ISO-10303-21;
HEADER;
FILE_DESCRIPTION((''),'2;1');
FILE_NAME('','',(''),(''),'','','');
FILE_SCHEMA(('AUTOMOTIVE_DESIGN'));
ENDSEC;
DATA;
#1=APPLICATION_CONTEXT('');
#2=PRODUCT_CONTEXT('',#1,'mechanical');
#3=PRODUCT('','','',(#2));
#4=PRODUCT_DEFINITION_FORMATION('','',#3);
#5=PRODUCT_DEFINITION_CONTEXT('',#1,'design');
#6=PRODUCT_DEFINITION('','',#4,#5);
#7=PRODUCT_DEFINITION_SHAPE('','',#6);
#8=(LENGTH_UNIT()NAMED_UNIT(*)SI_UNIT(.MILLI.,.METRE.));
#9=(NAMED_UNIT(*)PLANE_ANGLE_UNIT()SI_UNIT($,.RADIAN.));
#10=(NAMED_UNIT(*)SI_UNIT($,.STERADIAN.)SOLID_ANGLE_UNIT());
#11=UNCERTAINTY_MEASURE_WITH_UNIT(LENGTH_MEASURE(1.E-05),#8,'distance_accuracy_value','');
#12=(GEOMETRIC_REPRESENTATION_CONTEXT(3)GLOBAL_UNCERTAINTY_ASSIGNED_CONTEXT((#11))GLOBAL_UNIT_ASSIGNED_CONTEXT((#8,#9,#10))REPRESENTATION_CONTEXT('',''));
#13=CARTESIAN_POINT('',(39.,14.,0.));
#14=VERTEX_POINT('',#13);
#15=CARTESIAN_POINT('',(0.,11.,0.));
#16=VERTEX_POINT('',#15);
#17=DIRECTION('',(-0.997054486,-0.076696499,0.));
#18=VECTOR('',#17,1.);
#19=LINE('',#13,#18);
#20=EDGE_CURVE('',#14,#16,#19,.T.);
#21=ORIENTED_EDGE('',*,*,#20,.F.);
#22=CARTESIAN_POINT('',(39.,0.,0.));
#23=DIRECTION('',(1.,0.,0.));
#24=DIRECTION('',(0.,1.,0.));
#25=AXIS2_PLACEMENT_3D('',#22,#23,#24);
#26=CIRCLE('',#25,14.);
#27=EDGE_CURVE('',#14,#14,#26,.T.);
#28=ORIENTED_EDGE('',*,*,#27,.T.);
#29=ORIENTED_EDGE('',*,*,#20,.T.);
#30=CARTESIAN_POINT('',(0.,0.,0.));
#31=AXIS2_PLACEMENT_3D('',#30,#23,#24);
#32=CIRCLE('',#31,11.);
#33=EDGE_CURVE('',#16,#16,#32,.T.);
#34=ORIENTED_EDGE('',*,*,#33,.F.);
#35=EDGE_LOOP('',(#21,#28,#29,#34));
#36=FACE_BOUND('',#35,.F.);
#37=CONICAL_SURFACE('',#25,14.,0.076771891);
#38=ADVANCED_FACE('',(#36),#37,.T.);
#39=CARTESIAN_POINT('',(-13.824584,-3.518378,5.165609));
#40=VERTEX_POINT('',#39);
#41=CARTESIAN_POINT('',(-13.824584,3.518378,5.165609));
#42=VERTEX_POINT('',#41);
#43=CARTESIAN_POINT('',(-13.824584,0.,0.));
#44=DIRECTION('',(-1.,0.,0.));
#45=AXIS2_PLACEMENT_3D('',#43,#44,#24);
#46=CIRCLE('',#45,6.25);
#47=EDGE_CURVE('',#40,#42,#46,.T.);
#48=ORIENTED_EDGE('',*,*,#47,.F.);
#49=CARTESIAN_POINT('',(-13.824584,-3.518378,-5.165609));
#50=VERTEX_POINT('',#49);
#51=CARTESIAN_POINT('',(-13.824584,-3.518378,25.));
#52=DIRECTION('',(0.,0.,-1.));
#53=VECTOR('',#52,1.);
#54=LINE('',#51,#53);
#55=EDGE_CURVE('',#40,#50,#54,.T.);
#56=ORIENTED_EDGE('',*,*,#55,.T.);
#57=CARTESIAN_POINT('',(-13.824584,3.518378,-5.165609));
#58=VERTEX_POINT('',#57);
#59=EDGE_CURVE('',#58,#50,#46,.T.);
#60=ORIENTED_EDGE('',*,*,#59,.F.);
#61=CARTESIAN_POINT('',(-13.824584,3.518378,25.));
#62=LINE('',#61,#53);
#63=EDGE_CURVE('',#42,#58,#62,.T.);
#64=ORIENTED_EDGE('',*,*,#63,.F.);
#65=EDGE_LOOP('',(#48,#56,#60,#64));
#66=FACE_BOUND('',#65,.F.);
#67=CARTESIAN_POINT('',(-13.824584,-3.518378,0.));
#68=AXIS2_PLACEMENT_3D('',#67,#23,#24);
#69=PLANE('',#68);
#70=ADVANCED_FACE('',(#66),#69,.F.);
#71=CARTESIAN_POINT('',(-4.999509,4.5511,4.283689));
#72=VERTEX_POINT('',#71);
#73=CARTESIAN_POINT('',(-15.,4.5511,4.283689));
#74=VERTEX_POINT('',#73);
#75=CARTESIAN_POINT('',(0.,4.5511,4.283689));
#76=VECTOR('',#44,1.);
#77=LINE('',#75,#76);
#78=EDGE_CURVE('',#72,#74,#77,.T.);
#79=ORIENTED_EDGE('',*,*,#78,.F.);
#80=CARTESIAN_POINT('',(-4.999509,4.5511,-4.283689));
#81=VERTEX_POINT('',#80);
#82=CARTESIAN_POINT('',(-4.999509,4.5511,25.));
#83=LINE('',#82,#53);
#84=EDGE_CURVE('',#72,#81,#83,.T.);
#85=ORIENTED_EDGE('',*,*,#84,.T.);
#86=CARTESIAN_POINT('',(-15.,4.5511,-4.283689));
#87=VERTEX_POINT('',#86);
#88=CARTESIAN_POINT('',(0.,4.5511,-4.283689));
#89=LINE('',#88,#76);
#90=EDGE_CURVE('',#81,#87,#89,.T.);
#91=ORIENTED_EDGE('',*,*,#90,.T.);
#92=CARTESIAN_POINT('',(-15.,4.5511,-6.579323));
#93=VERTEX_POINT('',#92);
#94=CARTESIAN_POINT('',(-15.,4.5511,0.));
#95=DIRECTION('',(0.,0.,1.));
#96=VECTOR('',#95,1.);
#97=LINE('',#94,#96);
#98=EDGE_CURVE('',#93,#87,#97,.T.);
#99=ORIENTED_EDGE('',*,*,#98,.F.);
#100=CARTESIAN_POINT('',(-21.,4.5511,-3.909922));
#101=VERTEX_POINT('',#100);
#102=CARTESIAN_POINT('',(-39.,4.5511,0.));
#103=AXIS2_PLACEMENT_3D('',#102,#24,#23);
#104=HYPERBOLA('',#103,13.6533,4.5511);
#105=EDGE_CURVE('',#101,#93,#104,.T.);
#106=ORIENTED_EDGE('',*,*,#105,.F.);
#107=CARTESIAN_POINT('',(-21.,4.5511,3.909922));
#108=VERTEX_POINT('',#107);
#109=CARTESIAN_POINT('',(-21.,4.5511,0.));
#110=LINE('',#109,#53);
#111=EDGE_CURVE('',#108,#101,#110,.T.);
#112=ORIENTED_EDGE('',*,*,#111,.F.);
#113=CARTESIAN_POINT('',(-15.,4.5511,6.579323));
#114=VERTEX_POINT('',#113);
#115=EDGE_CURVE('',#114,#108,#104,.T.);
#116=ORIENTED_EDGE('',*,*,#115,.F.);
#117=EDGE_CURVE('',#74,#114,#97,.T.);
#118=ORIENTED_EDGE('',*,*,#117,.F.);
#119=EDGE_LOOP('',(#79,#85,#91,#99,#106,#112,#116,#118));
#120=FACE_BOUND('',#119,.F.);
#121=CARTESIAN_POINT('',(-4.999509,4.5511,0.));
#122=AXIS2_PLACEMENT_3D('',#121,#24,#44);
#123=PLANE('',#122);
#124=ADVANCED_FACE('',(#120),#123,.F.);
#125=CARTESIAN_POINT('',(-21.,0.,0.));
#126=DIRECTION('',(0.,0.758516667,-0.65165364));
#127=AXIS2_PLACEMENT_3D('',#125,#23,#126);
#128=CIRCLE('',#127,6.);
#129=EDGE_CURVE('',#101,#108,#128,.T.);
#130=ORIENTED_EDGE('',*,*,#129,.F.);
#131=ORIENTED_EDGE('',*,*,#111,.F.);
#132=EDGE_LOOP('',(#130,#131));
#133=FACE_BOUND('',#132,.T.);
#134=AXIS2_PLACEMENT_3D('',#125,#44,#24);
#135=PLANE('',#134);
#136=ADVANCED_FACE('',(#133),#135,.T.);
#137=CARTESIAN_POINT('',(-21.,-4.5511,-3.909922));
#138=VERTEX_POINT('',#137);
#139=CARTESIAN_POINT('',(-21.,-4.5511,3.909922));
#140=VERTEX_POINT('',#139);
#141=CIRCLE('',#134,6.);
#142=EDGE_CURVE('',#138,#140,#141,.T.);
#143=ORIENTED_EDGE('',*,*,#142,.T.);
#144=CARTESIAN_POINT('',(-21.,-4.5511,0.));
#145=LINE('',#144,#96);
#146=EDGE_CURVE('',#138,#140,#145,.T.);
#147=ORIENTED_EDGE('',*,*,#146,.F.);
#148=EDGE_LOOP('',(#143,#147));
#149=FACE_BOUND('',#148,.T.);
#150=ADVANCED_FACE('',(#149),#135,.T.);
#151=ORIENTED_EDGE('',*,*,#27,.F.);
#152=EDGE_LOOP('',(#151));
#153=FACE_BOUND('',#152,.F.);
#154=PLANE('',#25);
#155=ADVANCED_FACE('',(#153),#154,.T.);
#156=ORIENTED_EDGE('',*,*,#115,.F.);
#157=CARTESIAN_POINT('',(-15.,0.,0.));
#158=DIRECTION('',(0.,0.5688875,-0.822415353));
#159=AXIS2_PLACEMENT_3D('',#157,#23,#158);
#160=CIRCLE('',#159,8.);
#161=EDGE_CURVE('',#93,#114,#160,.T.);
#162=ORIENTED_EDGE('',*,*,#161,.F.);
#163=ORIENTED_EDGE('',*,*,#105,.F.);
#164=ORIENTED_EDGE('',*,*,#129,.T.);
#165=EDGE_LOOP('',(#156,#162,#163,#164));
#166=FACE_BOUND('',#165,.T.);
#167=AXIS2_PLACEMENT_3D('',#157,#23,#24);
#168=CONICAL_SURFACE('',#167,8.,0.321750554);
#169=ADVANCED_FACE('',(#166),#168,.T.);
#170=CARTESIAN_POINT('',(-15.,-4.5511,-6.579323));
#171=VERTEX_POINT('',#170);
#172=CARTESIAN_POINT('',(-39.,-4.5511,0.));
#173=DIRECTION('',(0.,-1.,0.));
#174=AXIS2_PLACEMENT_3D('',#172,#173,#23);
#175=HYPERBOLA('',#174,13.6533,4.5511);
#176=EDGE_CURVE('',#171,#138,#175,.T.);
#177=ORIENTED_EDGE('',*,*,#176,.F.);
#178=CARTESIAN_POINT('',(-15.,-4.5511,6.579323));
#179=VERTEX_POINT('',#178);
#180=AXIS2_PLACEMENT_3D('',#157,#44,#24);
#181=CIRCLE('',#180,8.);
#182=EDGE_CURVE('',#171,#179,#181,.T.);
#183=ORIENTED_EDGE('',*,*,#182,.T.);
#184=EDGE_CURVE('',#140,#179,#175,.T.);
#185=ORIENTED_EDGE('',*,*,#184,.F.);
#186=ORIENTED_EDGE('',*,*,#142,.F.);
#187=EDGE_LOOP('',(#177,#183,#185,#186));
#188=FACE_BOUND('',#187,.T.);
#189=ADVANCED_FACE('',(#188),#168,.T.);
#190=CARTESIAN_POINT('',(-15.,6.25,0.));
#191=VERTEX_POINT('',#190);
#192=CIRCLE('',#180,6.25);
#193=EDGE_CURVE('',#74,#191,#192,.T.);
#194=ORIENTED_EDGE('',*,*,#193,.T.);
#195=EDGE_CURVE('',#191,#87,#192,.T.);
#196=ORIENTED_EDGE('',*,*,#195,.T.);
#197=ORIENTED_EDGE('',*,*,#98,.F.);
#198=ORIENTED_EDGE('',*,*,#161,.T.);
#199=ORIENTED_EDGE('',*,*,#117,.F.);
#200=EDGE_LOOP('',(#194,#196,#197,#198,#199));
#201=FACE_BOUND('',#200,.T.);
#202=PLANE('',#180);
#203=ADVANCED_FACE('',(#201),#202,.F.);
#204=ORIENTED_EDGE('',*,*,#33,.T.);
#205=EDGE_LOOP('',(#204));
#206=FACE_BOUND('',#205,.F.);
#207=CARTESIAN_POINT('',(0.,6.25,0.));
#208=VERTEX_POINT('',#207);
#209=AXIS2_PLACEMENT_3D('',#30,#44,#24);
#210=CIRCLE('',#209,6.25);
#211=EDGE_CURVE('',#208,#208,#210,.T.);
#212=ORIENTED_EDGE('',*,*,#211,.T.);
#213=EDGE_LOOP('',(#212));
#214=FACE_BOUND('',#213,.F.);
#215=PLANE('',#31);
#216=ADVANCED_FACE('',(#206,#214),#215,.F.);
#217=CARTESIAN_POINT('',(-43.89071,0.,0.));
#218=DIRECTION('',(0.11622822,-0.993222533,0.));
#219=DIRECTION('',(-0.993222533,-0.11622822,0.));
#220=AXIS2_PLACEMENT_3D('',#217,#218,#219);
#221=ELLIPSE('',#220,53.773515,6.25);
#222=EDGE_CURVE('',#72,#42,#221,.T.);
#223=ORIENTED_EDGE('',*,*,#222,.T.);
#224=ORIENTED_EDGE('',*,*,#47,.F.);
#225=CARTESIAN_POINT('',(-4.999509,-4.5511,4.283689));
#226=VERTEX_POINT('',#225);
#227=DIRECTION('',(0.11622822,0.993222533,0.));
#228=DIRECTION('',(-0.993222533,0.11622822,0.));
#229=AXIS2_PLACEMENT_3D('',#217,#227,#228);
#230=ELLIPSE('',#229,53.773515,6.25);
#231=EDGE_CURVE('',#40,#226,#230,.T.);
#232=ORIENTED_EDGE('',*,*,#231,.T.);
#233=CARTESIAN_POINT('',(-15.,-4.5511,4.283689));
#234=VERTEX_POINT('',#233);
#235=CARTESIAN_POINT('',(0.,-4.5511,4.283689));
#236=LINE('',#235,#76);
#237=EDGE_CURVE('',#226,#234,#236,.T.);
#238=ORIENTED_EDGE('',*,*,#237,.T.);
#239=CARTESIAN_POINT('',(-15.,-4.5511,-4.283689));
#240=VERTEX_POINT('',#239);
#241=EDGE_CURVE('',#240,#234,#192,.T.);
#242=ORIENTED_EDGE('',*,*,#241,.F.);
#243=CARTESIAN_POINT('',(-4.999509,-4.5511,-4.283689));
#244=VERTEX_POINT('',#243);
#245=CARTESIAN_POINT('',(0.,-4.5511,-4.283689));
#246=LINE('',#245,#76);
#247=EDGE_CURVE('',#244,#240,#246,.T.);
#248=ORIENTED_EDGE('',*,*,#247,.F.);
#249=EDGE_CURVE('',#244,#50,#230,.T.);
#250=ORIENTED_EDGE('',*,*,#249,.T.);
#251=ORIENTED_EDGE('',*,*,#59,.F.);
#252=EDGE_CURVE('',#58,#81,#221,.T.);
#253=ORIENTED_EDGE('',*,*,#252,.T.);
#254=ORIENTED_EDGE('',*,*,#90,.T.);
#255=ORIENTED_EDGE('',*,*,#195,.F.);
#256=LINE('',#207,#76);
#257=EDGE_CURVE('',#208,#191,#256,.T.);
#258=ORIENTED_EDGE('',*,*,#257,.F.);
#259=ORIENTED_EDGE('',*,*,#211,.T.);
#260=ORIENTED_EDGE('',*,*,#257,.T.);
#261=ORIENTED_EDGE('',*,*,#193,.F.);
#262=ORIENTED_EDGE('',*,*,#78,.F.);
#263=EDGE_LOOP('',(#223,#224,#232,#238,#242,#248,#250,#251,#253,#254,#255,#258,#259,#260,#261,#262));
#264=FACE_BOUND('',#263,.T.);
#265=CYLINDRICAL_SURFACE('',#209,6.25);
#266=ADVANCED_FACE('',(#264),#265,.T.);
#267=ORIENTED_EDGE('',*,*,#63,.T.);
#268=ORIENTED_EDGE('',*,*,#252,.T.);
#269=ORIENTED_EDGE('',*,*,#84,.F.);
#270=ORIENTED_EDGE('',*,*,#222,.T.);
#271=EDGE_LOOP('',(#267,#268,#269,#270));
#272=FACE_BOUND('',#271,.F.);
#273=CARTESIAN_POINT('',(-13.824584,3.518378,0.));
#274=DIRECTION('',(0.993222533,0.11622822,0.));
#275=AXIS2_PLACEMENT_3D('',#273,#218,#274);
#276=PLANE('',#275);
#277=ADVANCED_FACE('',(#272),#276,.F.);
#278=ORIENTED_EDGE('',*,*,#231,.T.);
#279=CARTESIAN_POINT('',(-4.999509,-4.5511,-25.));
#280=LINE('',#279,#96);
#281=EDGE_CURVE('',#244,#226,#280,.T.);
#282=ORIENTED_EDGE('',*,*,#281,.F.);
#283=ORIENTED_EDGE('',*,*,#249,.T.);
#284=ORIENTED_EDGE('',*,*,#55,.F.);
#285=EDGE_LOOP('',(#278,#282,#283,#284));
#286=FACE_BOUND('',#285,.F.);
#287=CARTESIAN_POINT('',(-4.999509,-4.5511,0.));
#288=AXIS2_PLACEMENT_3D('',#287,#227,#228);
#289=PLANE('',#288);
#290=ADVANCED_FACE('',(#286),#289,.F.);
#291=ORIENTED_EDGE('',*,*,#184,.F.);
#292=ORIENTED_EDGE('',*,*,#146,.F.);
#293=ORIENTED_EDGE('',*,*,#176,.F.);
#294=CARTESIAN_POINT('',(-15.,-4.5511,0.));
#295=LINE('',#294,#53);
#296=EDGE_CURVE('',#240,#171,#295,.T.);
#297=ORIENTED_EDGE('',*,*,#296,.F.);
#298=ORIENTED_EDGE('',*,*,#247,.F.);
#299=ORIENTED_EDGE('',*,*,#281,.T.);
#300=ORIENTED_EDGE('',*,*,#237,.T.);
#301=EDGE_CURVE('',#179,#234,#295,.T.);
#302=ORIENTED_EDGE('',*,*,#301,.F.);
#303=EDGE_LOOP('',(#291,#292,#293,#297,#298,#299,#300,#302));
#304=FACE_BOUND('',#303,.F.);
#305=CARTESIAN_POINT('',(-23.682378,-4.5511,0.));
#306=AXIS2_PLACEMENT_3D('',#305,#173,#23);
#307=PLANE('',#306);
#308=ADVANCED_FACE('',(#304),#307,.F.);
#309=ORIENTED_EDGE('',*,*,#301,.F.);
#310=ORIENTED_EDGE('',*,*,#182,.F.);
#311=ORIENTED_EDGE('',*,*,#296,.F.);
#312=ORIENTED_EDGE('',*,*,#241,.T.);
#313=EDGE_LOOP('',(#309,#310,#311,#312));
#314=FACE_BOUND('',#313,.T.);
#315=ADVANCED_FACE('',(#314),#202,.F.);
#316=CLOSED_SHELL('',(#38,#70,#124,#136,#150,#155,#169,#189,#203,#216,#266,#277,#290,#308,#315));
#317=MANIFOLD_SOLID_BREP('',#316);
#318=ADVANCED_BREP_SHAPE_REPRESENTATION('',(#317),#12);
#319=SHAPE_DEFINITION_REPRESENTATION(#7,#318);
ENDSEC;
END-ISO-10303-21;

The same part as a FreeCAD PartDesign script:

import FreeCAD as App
import Part
import Sketcher
from FreeCAD import Vector

doc = App.newDocument("Part")
body = doc.addObject("PartDesign::Body", "Body")

sketch1 = doc.addObject("Sketcher::SketchObject", "Sketch")
body.addObject(sketch1)
sketch1.AttachmentSupport = (doc.XY_Plane, [""])
sketch1.MapMode = "FlatFace"
sketch1.addGeometry([
    Part.LineSegment(Vector(0, 11, 0), Vector(0, 0, 0)),
    Part.LineSegment(Vector(0, 0, 0), Vector(39, 0, 0)),
    Part.LineSegment(Vector(39, 0, 0), Vector(39, 14, 0)),
    Part.LineSegment(Vector(39, 14, 0), Vector(0, 11, 0)),
], False)
sketch1.addConstraint([
    Sketcher.Constraint("Coincident", 0, 2, 1, 1),
    Sketcher.Constraint("Coincident", 1, 2, 2, 1),
    Sketcher.Constraint("Coincident", 2, 2, 3, 1),
    Sketcher.Constraint("Coincident", 3, 2, 0, 1),
    Sketcher.Constraint("Vertical", 0),
    Sketcher.Constraint("Horizontal", 1),
    Sketcher.Constraint("Vertical", 2),
    Sketcher.Constraint("Coincident", 0, 2, -1, 1),
    Sketcher.Constraint("DistanceX", 1, 1, 1, 2, 39.0),
    Sketcher.Constraint("DistanceY", 0, 2, 0, 1, 11.0),
    Sketcher.Constraint("DistanceY", 2, 1, 2, 2, 14.0),
])
revolution = doc.addObject("PartDesign::Revolution", "Revolution")
body.addObject(revolution)
revolution.Profile = sketch1
revolution.ReferenceAxis = (sketch1, ["H_Axis"])
revolution.Angle = 360

sketch2 = doc.addObject("Sketcher::SketchObject", "Sketch001")
body.addObject(sketch2)
sketch2.AttachmentSupport = (doc.XY_Plane, [""])
sketch2.MapMode = "FlatFace"
sketch2.addGeometry([
    Part.LineSegment(Vector(-15, 0, 0), Vector(0, 0, 0)),
    Part.LineSegment(Vector(0, 0, 0), Vector(0, 6.25, 0)),
    Part.LineSegment(Vector(0, 6.25, 0), Vector(-15, 6.25, 0)),
    Part.LineSegment(Vector(-15, 6.25, 0), Vector(-15, 0, 0)),
], False)
sketch2.addConstraint([
    Sketcher.Constraint("Coincident", 0, 2, 1, 1),
    Sketcher.Constraint("Coincident", 1, 2, 2, 1),
    Sketcher.Constraint("Coincident", 2, 2, 3, 1),
    Sketcher.Constraint("Coincident", 3, 2, 0, 1),
    Sketcher.Constraint("Horizontal", 0),
    Sketcher.Constraint("Vertical", 1),
    Sketcher.Constraint("Horizontal", 2),
    Sketcher.Constraint("Vertical", 3),
    Sketcher.Constraint("Coincident", 0, 2, -1, 1),
    Sketcher.Constraint("DistanceX", 0, 1, 0, 2, 15.0),
    Sketcher.Constraint("DistanceY", 1, 1, 1, 2, 6.25),
])
revolution2 = doc.addObject("PartDesign::Revolution", "Revolution001")
body.addObject(revolution2)
revolution2.Profile = sketch2
revolution2.ReferenceAxis = (sketch2, ["H_Axis"])
revolution2.Angle = 360

sketch3 = doc.addObject("Sketcher::SketchObject", "Sketch002")
body.addObject(sketch3)
sketch3.AttachmentSupport = (doc.XY_Plane, [""])
sketch3.MapMode = "FlatFace"
sketch3.addGeometry([
    Part.LineSegment(Vector(-21, 0, 0), Vector(-15, 0, 0)),
    Part.LineSegment(Vector(-15, 0, 0), Vector(-15, 8, 0)),
    Part.LineSegment(Vector(-15, 8, 0), Vector(-21, 6, 0)),
    Part.LineSegment(Vector(-21, 6, 0), Vector(-21, 0, 0)),
], False)
sketch3.addConstraint([
    Sketcher.Constraint("Coincident", 0, 2, 1, 1),
    Sketcher.Constraint("Coincident", 1, 2, 2, 1),
    Sketcher.Constraint("Coincident", 2, 2, 3, 1),
    Sketcher.Constraint("Coincident", 3, 2, 0, 1),
    Sketcher.Constraint("Horizontal", 0),
    Sketcher.Constraint("Vertical", 1),
    Sketcher.Constraint("Vertical", 3),
    Sketcher.Constraint("PointOnObject", 0, 2, -1),
    Sketcher.Constraint("Equal", 0, 3),
    Sketcher.Constraint("DistanceX", 0, 1, 0, 2, 6.0),
    Sketcher.Constraint("DistanceY", 1, 1, 1, 2, 8.0),
    Sketcher.Constraint("DistanceX", 0, 2, -1, 1, 15.0),
])
revolution3 = doc.addObject("PartDesign::Revolution", "Revolution002")
body.addObject(revolution3)
revolution3.Profile = sketch3
revolution3.ReferenceAxis = (sketch3, ["H_Axis"])
revolution3.Angle = 360

sketch4 = doc.addObject("Sketcher::SketchObject", "Sketch003")
body.addObject(sketch4)
sketch4.AttachmentSupport = (doc.XY_Plane, [""])
sketch4.MapMode = "FlatFace"
sketch4.addGeometry([
    Part.LineSegment(Vector(-4.999509, 4.5511, 0), Vector(-23.682378, 4.5511, 0)),
    Part.LineSegment(Vector(-23.682378, 4.5511, 0), Vector(-23.776263, 0, 0)),
    Part.LineSegment(Vector(-23.776263, 0, 0), Vector(-23.682378, -4.5511, 0)),
    Part.LineSegment(Vector(-23.682378, -4.5511, 0), Vector(-4.999509, -4.5511, 0)),
    Part.LineSegment(Vector(-4.999509, -4.5511, 0), Vector(-13.824584, -3.518378, 0)),
    Part.LineSegment(Vector(-13.824584, -3.518378, 0), Vector(-13.824584, 3.518378, 0)),
    Part.LineSegment(Vector(-13.824584, 3.518378, 0), Vector(-4.999509, 4.5511, 0)),
], False)
sketch4.addConstraint([
    Sketcher.Constraint("Coincident", 0, 2, 1, 1),
    Sketcher.Constraint("Coincident", 1, 2, 2, 1),
    Sketcher.Constraint("Coincident", 2, 2, 3, 1),
    Sketcher.Constraint("Coincident", 3, 2, 4, 1),
    Sketcher.Constraint("Coincident", 4, 2, 5, 1),
    Sketcher.Constraint("Coincident", 5, 2, 6, 1),
    Sketcher.Constraint("Coincident", 6, 2, 0, 1),
    Sketcher.Constraint("Horizontal", 0),
    Sketcher.Constraint("Horizontal", 3),
    Sketcher.Constraint("Vertical", 5),
    Sketcher.Constraint("Symmetric", 0, 2, 2, 2, -1),
    Sketcher.Constraint("PointOnObject", 1, 2, -1),
    Sketcher.Constraint("Vertical", 3, 2, 6, 2),
    Sketcher.Constraint("Equal", 4, 6),
    Sketcher.Constraint("DistanceX", 0, 2, 0, 1, 18.682869),
    Sketcher.Constraint("DistanceY", -1, 1, 0, 2, 4.5511),
    Sketcher.Constraint("Distance", 1, 4.552068),
    Sketcher.Constraint("DistanceY", 5, 1, 5, 2, 7.036756),
    Sketcher.Constraint("DistanceX", 0, 2, -1, 1, 23.682378),
    Sketcher.Constraint("DistanceX", 1, 2, 4, 2, 9.951679),
])
pocket1 = doc.addObject("PartDesign::Pocket", "Pocket")
body.addObject(pocket1)
pocket1.Profile = sketch4
pocket1.Length = 50
pocket1.Midplane = True

doc.recompute()
